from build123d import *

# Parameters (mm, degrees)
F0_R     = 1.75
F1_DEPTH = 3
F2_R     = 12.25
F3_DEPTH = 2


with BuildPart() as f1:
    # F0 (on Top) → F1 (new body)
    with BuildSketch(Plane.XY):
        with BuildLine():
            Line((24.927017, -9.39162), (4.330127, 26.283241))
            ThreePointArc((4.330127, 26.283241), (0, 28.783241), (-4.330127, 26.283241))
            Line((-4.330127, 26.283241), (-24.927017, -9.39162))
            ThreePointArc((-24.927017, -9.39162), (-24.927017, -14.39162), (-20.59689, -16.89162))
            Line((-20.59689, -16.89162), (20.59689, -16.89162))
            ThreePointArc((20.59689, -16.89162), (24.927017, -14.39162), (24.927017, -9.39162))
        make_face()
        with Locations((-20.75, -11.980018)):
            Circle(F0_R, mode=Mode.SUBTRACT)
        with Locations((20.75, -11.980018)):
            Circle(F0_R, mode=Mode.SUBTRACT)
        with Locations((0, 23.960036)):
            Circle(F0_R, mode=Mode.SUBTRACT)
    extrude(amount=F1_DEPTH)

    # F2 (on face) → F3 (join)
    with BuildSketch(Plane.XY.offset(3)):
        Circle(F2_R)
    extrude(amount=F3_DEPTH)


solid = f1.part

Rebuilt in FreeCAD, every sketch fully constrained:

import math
import FreeCAD as App
import Part
import Sketcher

V = App.Vector
Q = App.Units.Quantity

doc = App.newDocument("Part")
params = doc.addObject("Spreadsheet::Sheet", "Params")
for row, (alias, value) in enumerate([
    ("sketch1_radius", "5 mm"),
    ("sketch1_diameter", "3.5 mm"),
    ("pad1_length", "3 mm"),
    ("sketch2_diameter", "24.5 mm"),
    ("pad2_length", "2 mm"),
], start=1):
    params.set(f"A{row}", alias)
    params.set(f"B{row}", "=" + value)
    params.setAlias(f"B{row}", alias)

body = doc.addObject("PartDesign::Body", "Body")

sketch1 = body.newObject("Sketcher::SketchObject", "Sketch")
sketch1.AttachmentSupport = (doc.getObject("XY_Plane"), [""])
sketch1.MapMode = "FlatFace"
sketch1.addGeometry([
    Part.LineSegment(V(24.9, -9.4, 0), V(4.3, 26.3, 0)),
    Part.ArcOfCircle(Part.Circle(V(0, 23.8, 0), V(0, 0, 1), 5), math.radians(30), math.radians(150)),
    Part.LineSegment(V(-4.3, 26.3, 0), V(-24.9, -9.4, 0)),
    Part.ArcOfCircle(Part.Circle(V(-20.6, -11.9, 0), V(0, 0, 1), 5), math.radians(150), math.radians(270)),
    Part.LineSegment(V(-20.6, -16.9, 0), V(20.6, -16.9, 0)),
    Part.ArcOfCircle(Part.Circle(V(20.6, -11.9, 0), V(0, 0, 1), 5), math.radians(-90), math.radians(30)),
    Part.Circle(V(-20.8, -12, 0), V(0, 0, 1), 1.8),
    Part.Circle(V(20.8, -12, 0), V(0, 0, 1), 1.8),
    Part.Circle(V(0, 24, 0), V(0, 0, 1), 1.8),
], False)
sketch1.addConstraint([
    Sketcher.Constraint("Tangent", 0, 2, 1, 1),
    Sketcher.Constraint("Tangent", 1, 2, 2, 1),
    Sketcher.Constraint("Tangent", 2, 2, 3, 1),
    Sketcher.Constraint("Tangent", 3, 2, 4, 1),
    Sketcher.Constraint("Tangent", 4, 2, 5, 1),
    Sketcher.Constraint("Tangent", 5, 2, 0, 1),
    Sketcher.Constraint("Horizontal", 4),
    Sketcher.Constraint("Equal", 1, 3),
    Sketcher.Constraint("Equal", 3, 5),
    Sketcher.Constraint("Equal", 6, 7),
    Sketcher.Constraint("Equal", 7, 8),
    Sketcher.Constraint("Symmetric", 6, 3, 7, 3, -2),
    Sketcher.Constraint("Symmetric", 0, 2, 1, 2, -2),
    Sketcher.Constraint("PointOnObject", 8, 3, -2),
    Sketcher.Constraint("Radius", 1, 5.0),
    Sketcher.Constraint("Diameter", 6, 3.5),
    Sketcher.Constraint("Angle", 0, Q("119.999999 deg")),
    Sketcher.Constraint("DistanceX", 6, 3, 7, 3, 41.5),
    Sketcher.Constraint("DistanceX", 4, 1, 4, 2, 41.19378),
    Sketcher.Constraint("DistanceY", -1, 1, 1, 3, 23.783241),
    Sketcher.Constraint("DistanceY", 6, 3, 1, 3, 35.763259),
    Sketcher.Constraint("DistanceY", -1, 1, 8, 3, 23.960036),
])
sketch1.setExpression("Constraints[14]", "Params.sketch1_radius")
sketch1.setExpression("Constraints[15]", "Params.sketch1_diameter")
pad1 = body.newObject("PartDesign::Pad", "Pad")
pad1.Profile = sketch1
pad1.setExpression("Length", "Params.pad1_length")

sketch2 = body.newObject("Sketcher::SketchObject", "Sketch001")
sketch2.AttachmentSupport = (doc.getObject("XY_Plane"), [""])
sketch2.MapMode = "FlatFace"
sketch2.AttachmentOffset = App.Placement(V(0, 0, 3), App.Rotation())
sketch2.addGeometry(Part.Circle(V(0, 0, 0), V(0, 0, 1), 12), False)
sketch2.addConstraint([
    Sketcher.Constraint("Coincident", 0, 3, -1, 1),
    Sketcher.Constraint("Diameter", 0, 24.5),
])
sketch2.setExpression("Constraints[1]", "Params.sketch2_diameter")
pad2 = body.newObject("PartDesign::Pad", "Pad001")
pad2.Profile = sketch2
pad2.setExpression("Length", "Params.pad2_length")

doc.recompute()
